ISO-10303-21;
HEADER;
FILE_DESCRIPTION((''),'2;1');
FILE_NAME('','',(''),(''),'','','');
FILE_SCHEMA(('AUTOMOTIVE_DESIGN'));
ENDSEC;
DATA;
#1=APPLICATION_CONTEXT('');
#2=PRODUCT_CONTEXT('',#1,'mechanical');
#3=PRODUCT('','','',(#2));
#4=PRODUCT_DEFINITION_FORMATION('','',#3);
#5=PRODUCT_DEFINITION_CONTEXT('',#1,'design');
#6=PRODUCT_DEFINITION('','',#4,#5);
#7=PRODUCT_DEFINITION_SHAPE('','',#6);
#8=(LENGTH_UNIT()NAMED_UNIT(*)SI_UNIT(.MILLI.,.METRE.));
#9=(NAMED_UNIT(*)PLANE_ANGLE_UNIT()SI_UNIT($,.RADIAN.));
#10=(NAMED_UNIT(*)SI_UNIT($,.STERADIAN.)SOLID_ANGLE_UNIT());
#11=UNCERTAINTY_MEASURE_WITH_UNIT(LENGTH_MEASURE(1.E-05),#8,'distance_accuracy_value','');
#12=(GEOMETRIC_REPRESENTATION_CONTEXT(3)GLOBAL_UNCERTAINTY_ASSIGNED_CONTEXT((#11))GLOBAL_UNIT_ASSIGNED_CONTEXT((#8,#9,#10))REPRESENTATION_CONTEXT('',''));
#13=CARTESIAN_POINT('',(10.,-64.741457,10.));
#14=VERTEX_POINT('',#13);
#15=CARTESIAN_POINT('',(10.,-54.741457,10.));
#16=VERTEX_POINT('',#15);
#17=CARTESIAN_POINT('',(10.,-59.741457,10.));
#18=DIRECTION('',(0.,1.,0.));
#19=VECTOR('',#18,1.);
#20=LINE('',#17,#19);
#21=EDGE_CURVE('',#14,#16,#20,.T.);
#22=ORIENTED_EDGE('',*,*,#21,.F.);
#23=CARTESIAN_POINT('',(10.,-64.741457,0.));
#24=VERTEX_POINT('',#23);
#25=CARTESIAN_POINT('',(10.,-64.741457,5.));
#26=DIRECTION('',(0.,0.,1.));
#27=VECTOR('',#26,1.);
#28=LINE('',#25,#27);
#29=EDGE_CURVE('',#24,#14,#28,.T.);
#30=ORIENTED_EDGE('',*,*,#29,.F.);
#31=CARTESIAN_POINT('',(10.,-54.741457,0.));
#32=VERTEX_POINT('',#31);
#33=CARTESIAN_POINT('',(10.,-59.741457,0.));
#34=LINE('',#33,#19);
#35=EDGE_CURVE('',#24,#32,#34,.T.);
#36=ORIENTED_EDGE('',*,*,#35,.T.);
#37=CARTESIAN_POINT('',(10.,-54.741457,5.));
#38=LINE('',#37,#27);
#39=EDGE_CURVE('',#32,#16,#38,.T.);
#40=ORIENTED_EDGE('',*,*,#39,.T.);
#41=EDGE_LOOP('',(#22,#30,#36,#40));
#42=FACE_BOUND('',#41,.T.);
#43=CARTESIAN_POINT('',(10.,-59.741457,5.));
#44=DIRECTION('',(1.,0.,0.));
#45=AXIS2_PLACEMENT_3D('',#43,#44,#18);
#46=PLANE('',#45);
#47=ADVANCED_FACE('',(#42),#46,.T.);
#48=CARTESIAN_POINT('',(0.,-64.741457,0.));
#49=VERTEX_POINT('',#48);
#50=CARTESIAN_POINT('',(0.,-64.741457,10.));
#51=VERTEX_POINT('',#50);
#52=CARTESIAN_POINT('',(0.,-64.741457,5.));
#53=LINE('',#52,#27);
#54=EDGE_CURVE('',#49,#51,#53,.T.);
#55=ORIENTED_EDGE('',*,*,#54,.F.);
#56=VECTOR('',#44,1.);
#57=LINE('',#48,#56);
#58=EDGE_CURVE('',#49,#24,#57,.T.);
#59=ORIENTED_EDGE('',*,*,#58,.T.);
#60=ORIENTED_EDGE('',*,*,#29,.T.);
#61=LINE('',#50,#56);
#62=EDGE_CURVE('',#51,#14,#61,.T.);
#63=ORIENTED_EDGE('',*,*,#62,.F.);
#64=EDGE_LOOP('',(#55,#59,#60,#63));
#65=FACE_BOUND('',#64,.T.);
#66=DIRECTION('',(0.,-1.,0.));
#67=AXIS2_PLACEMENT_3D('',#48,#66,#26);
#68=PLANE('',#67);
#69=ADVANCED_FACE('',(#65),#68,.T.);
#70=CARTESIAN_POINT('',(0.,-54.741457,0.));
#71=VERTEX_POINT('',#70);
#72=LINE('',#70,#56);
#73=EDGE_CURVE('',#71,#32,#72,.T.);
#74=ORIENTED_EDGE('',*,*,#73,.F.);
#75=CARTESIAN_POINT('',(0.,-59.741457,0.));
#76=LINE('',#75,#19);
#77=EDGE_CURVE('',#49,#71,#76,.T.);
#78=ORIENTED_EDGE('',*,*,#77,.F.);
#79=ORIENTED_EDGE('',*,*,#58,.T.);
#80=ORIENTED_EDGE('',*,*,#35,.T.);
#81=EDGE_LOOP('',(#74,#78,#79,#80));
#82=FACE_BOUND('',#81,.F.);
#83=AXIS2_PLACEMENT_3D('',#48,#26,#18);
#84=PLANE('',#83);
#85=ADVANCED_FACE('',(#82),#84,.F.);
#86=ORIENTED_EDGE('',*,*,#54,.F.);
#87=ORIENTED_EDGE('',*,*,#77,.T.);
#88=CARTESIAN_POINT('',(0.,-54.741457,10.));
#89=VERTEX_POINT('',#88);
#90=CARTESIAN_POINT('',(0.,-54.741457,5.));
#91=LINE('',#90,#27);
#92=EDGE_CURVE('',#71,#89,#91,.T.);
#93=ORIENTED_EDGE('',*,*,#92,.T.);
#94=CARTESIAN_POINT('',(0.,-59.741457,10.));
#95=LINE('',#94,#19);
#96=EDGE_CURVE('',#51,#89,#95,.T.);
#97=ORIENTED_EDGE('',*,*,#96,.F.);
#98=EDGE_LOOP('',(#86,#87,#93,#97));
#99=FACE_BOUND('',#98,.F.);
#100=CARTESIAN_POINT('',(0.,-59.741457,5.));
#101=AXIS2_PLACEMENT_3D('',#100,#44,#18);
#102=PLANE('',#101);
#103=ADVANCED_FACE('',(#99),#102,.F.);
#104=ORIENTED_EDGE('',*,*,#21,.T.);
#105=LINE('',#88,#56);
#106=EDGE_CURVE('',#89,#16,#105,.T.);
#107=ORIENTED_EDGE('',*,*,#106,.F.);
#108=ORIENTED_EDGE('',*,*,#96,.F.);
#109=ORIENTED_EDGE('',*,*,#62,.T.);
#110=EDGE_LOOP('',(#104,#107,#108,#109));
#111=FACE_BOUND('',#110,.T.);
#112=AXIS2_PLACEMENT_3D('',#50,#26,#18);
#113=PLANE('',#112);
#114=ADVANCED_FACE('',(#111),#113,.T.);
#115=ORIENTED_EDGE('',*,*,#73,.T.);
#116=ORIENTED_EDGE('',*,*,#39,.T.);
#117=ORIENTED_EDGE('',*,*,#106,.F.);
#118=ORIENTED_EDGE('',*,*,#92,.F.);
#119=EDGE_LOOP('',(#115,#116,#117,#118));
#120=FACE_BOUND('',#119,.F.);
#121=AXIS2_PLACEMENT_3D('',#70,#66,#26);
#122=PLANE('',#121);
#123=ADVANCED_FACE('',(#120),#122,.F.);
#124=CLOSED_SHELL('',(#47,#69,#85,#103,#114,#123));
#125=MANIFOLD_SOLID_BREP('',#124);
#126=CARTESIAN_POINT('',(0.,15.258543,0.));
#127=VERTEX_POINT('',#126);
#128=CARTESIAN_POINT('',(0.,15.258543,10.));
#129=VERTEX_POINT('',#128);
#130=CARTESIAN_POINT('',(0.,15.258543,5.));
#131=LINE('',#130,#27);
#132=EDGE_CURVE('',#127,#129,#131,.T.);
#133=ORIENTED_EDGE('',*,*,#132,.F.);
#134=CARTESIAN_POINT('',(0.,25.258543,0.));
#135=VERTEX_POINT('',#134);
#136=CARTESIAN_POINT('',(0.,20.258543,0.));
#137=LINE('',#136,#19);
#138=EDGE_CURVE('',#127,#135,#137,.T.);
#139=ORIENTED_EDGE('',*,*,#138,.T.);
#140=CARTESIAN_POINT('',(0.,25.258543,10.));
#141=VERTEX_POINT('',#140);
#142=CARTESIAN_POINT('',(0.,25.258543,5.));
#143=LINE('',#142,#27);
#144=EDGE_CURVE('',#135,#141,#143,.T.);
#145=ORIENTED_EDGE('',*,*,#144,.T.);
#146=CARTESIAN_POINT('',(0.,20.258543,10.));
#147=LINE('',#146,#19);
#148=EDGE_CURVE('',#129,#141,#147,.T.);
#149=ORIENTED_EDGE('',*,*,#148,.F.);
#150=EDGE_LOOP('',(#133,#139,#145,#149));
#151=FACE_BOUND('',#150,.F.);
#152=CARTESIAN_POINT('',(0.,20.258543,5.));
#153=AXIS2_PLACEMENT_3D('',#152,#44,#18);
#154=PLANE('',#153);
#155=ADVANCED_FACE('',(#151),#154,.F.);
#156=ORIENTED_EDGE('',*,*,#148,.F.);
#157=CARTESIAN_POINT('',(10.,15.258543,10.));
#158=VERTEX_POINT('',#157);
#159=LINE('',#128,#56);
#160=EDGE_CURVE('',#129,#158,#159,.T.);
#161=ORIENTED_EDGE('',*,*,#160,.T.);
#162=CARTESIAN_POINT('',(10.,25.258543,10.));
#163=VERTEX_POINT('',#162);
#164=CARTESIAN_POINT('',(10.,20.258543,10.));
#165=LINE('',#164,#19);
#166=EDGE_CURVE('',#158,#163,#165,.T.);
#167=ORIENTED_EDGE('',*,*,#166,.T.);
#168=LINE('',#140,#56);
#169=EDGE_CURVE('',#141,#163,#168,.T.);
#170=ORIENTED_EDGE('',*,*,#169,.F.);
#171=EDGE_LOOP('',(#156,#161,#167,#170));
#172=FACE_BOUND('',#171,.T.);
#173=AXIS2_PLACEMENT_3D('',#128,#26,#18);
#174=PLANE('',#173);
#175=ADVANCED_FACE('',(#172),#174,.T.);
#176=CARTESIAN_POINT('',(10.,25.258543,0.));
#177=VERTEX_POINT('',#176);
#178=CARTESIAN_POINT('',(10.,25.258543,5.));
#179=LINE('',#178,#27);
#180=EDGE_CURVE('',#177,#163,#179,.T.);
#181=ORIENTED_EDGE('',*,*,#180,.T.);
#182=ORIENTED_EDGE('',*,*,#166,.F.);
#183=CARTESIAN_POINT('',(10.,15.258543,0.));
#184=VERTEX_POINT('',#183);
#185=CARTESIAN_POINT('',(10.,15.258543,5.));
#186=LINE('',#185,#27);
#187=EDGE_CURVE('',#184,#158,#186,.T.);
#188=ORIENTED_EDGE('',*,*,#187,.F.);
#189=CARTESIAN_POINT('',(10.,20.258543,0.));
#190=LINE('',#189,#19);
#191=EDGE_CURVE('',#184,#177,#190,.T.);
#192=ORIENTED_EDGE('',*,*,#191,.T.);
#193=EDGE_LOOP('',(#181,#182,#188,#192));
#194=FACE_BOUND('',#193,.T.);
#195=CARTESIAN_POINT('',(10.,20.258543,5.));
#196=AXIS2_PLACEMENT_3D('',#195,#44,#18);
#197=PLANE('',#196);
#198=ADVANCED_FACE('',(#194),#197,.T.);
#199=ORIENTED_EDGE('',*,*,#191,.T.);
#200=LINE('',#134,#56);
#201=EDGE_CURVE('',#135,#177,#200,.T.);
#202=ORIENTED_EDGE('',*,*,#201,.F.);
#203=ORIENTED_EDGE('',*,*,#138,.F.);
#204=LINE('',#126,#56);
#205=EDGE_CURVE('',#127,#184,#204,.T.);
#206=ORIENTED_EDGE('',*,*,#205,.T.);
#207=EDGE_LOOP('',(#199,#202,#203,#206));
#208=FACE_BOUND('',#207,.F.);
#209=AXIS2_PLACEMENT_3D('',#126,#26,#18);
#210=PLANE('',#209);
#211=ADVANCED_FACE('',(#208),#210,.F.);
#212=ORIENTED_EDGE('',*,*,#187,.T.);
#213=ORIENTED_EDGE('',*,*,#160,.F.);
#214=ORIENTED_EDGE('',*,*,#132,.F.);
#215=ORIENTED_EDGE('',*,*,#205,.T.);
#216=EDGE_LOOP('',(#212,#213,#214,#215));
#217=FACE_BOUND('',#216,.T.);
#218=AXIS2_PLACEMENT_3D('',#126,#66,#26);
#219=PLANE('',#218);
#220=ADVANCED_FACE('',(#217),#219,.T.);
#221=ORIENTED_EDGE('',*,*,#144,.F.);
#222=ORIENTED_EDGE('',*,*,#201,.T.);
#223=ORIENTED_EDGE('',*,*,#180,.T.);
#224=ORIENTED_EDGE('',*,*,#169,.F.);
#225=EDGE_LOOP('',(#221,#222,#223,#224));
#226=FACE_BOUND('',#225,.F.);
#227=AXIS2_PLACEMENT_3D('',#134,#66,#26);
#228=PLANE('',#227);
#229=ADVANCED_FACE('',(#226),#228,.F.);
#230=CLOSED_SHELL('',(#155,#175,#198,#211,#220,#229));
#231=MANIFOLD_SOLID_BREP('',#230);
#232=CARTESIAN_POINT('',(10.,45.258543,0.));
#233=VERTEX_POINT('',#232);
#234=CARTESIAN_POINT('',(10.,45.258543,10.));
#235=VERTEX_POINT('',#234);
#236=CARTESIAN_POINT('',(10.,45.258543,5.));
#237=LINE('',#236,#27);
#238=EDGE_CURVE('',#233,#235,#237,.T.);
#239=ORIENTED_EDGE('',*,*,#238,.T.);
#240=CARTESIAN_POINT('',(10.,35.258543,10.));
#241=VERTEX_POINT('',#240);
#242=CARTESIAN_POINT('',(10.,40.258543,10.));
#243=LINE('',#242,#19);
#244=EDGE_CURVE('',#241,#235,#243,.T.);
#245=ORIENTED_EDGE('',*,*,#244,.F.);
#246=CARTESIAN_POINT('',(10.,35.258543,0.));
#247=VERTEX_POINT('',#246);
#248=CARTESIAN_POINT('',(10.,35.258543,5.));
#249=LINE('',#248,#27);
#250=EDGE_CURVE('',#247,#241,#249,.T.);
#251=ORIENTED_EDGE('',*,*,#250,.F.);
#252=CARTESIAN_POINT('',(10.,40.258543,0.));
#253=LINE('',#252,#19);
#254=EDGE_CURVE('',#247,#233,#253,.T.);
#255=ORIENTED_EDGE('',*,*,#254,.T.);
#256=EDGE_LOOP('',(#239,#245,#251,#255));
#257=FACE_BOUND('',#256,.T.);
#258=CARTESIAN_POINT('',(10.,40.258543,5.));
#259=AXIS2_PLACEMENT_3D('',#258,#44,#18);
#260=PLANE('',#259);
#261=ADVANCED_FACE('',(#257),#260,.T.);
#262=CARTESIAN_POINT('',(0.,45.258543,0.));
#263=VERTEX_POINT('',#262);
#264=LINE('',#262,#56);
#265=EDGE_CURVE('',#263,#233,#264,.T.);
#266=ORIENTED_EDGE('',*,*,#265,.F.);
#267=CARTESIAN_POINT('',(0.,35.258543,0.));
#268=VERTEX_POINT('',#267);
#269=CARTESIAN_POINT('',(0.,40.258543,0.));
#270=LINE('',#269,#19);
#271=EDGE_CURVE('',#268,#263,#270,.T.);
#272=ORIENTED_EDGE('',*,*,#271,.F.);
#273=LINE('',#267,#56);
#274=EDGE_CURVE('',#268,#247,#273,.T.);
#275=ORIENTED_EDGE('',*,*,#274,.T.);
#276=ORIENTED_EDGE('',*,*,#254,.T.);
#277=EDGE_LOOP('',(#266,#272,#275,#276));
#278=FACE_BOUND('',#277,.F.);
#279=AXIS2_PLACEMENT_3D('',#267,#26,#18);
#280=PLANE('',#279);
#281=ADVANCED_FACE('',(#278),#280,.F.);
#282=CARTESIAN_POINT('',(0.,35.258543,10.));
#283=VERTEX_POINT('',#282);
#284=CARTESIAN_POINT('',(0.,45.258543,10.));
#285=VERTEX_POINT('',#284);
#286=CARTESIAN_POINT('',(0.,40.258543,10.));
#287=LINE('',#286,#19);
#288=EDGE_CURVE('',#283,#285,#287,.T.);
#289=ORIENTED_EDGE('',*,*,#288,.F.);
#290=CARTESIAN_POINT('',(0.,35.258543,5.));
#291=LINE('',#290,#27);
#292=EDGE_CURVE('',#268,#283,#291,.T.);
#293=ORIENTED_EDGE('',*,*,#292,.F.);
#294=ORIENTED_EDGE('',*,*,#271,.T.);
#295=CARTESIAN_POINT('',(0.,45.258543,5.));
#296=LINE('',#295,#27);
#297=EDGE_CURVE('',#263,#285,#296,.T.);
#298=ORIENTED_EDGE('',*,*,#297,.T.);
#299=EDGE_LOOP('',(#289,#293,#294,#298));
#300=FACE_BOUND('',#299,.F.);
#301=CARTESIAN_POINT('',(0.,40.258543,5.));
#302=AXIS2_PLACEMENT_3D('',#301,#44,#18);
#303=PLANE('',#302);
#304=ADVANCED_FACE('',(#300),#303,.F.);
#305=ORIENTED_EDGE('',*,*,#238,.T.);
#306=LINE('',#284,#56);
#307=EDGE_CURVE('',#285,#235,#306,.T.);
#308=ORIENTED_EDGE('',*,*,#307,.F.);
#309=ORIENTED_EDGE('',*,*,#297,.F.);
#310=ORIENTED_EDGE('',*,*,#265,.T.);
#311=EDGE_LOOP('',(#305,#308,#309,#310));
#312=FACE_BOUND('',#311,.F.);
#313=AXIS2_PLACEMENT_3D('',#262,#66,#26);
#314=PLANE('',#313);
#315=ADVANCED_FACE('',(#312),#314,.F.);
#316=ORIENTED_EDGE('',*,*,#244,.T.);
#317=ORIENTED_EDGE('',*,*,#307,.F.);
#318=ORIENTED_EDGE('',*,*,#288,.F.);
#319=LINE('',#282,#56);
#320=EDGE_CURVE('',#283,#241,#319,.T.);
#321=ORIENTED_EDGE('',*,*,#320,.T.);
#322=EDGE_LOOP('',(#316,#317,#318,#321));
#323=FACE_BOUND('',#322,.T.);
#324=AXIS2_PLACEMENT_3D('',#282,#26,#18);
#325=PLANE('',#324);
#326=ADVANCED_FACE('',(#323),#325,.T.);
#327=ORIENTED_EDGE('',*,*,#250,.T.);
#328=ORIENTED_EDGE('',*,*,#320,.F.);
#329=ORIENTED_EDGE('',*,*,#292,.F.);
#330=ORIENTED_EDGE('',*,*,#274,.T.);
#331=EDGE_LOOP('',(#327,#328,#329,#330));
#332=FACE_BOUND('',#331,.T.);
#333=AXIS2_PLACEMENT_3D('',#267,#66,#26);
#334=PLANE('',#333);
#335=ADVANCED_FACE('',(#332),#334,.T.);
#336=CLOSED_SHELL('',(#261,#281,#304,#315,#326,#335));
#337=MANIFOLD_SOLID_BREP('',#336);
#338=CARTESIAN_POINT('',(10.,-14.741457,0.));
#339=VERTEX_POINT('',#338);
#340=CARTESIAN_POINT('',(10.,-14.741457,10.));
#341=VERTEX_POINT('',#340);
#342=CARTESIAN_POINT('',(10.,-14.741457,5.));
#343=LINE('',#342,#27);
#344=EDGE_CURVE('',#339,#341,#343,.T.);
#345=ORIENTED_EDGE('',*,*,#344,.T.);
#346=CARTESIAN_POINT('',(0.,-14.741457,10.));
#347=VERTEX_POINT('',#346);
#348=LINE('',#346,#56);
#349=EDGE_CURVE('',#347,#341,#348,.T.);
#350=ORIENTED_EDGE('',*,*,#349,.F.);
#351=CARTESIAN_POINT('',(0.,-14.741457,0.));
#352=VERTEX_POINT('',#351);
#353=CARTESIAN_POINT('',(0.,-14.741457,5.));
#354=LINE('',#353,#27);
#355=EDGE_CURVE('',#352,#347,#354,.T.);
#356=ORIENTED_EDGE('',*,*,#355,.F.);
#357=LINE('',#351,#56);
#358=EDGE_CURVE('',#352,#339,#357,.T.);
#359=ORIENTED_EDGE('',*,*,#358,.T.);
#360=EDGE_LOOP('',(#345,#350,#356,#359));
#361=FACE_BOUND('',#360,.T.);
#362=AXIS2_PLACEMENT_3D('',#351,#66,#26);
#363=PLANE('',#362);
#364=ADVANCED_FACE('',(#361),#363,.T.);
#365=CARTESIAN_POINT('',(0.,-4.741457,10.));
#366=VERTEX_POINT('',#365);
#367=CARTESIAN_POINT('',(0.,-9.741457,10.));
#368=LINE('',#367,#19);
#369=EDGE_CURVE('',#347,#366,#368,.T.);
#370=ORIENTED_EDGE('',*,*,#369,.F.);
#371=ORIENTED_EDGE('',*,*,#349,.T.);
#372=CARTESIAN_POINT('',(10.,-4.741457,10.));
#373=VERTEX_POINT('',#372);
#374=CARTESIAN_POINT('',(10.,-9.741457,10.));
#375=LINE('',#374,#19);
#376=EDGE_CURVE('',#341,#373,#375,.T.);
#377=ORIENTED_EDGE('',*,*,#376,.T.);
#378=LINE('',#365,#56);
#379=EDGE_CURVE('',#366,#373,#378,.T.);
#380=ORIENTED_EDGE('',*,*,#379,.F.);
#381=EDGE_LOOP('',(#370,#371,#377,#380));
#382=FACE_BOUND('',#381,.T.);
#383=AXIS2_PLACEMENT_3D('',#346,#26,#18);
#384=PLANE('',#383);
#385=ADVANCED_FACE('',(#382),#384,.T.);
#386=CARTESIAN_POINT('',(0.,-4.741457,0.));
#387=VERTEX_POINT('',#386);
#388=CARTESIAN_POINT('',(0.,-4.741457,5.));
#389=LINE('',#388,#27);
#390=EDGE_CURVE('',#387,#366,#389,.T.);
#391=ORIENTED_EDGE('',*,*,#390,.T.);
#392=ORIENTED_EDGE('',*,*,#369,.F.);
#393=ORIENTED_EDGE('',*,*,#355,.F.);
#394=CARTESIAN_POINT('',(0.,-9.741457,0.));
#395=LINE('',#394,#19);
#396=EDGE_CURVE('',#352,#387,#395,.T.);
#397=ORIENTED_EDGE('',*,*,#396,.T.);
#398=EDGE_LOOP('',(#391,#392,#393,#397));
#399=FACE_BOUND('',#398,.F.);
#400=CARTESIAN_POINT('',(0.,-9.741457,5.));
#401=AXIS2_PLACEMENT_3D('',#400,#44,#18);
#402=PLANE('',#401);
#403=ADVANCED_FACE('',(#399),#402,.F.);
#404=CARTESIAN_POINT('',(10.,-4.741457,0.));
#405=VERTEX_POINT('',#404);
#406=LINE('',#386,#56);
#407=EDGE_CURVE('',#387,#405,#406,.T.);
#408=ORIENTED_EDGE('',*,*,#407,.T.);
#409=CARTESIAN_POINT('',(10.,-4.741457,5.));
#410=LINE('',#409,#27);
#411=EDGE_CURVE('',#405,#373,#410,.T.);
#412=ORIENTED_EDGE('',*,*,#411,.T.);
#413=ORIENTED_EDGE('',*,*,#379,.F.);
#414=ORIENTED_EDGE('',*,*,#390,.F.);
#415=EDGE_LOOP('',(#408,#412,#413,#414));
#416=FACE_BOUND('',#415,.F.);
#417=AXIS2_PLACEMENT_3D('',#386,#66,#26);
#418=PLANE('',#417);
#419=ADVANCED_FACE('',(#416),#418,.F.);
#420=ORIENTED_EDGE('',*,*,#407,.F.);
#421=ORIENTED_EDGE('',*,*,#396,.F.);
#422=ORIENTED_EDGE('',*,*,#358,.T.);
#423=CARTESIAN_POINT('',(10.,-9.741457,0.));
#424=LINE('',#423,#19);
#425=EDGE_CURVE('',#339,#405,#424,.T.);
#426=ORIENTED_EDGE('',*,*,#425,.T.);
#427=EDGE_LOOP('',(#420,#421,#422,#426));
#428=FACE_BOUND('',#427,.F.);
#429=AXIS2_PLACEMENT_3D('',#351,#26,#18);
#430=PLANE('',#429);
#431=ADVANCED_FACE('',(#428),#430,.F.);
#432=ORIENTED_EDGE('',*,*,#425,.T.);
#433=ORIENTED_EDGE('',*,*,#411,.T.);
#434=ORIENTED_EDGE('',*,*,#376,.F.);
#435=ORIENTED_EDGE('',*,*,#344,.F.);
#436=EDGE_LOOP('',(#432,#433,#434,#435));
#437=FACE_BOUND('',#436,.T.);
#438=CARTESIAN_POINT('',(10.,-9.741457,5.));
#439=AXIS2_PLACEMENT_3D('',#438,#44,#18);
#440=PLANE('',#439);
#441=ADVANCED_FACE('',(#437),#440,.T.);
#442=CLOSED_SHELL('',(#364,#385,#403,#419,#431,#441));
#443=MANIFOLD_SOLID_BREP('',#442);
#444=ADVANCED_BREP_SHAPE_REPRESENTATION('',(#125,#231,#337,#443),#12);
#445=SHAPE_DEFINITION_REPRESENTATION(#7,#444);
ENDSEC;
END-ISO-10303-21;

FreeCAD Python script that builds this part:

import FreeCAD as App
import Part
import Sketcher

V = App.Vector
Q = App.Units.Quantity


def add_polygon(sketch, points):
    """Adds a closed chain of lines whose ends are joined by coincident constraints."""
    first, n = sketch.GeometryCount, len(points)
    for a, b in zip(points, points[1:] + points[:1]):
        sketch.addGeometry(Part.LineSegment(App.Vector(*a, 0), App.Vector(*b, 0)), False)
    for i in range(n):
        sketch.addConstraint(Sketcher.Constraint("Coincident", first + i, 2, first + (i + 1) % n, 1))

doc = App.newDocument("Part")
body = doc.addObject("PartDesign::Body", "Body")
body.AllowCompound = True

sketch1 = body.newObject("Sketcher::SketchObject", "Sketch")
sketch1.AttachmentSupport = (doc.getObject("YZ_Plane"), [""])
sketch1.MapMode = "FlatFace"
add_polygon(sketch1, [(-64.741457, 10), (-64.741457, 0), (-54.741457, 0), (-54.741457, 10)])
add_polygon(sketch1, [(-14.741457, 10), (-14.741457, 0), (-4.741457, 0), (-4.741457, 10)])
add_polygon(sketch1, [(15.258543, 10), (15.258543, 0), (25.258543, 0), (25.258543, 10)])
add_polygon(sketch1, [(35.258543, 10), (35.258543, 0), (45.258543, 0), (45.258543, 10)])
sketch1.addConstraint([
    Sketcher.Constraint("Vertical", 0),
    Sketcher.Constraint("Horizontal", 1),
    Sketcher.Constraint("Vertical", 2),
    Sketcher.Constraint("Horizontal", 3),
    Sketcher.Constraint("Vertical", 4),
    Sketcher.Constraint("Horizontal", 5),
    Sketcher.Constraint("Vertical", 6),
    Sketcher.Constraint("Horizontal", 7),
    Sketcher.Constraint("Vertical", 8),
    Sketcher.Constraint("Horizontal", 9),
    Sketcher.Constraint("Vertical", 10),
    Sketcher.Constraint("Horizontal", 11),
    Sketcher.Constraint("Vertical", 12),
    Sketcher.Constraint("Horizontal", 13),
    Sketcher.Constraint("Vertical", 14),
    Sketcher.Constraint("Horizontal", 15),
    Sketcher.Constraint("PointOnObject", 0, 2, -1),
    Sketcher.Constraint("PointOnObject", 4, 2, -1),
    Sketcher.Constraint("PointOnObject", 8, 2, -1),
    Sketcher.Constraint("PointOnObject", 12, 2, -1),
    Sketcher.Constraint("Horizontal", 3, 2, 6, 2),
    Sketcher.Constraint("Horizontal", 7, 2, 10, 2),
    Sketcher.Constraint("Horizontal", 11, 2, 14, 2),
    Sketcher.Constraint("Equal", 3, 5),
    Sketcher.Constraint("Equal", 7, 9),
    Sketcher.Constraint("Equal", 11, 13),
    Sketcher.Constraint("Equal", 15, 0),
    Sketcher.Constraint("DistanceX", 1, 1, 1, 2, Q("10 mm")),
    Sketcher.Constraint("DistanceX", 1, 2, 4, 2, Q("40 mm")),
    Sketcher.Constraint("DistanceX", 5, 2, 8, 2, Q("20 mm")),
    Sketcher.Constraint("DistanceX", 9, 2, 12, 2, Q("10 mm")),
    Sketcher.Constraint("DistanceX", 0, 2, -1, 1, Q("64.741457 mm")),
])
pad1 = body.newObject("PartDesign::Pad", "Pad")
pad1.Profile = sketch1
pad1.Length = 10

doc.recompute()
